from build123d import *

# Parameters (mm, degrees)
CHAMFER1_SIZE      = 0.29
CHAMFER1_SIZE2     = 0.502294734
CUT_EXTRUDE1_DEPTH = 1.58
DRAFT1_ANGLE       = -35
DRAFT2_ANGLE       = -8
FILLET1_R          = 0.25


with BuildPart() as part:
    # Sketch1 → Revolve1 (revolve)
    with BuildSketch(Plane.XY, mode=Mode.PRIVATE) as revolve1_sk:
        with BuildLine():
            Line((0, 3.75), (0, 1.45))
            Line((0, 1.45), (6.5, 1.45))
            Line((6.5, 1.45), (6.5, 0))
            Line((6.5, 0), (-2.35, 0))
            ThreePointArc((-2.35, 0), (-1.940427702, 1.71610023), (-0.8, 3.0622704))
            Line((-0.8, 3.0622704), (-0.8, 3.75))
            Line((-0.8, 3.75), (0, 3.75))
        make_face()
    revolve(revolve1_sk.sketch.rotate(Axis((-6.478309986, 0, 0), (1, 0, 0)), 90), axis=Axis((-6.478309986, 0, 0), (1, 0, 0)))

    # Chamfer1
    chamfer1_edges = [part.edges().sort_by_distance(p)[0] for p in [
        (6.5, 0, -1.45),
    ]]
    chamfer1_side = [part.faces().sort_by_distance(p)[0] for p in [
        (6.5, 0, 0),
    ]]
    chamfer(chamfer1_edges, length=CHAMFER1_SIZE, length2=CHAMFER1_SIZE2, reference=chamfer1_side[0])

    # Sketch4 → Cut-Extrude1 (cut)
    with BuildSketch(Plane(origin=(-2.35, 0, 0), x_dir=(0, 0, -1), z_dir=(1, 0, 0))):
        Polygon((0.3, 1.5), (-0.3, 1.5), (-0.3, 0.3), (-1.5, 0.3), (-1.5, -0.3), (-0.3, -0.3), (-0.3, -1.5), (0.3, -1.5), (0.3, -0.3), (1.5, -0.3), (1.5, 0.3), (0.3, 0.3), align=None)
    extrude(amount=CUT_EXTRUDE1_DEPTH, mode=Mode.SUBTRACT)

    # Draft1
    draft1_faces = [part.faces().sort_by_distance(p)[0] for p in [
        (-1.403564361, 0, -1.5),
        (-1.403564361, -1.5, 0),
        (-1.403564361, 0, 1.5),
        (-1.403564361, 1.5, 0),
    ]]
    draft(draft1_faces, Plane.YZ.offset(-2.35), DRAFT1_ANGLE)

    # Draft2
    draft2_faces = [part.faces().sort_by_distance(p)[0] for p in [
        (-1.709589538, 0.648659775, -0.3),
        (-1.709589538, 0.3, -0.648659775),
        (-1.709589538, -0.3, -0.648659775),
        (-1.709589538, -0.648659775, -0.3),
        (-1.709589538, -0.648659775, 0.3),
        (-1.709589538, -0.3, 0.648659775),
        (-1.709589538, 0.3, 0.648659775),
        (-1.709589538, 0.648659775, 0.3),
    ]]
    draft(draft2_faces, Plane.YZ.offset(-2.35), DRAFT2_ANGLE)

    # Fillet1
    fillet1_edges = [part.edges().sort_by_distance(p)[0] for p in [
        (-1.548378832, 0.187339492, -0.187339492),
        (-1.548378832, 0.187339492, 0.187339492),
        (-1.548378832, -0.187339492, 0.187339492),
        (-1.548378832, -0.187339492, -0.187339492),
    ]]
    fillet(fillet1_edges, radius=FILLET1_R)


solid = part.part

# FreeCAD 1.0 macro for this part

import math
import FreeCAD as App
import Part
import Sketcher

V = App.Vector


def edges_at(feature, points):
    """Names of the edges that pass closest to the given points."""
    edges = feature.Shape.Edges
    near = lambda p: min(range(len(edges)), key=lambda i: edges[i].distToShape(Part.Vertex(*p))[0])
    return sorted({f"Edge{near(p) + 1}" for p in points})


def faces_at(feature, points):
    """Names of the faces that lie closest to the given points."""
    faces = feature.Shape.Faces
    near = lambda p: min(range(len(faces)), key=lambda i: faces[i].distToShape(Part.Vertex(*p))[0])
    return sorted({f"Face{near(p) + 1}" for p in points})


def add_polygon(sketch, points):
    """Adds a closed chain of lines whose ends are joined by coincident constraints."""
    first, n = sketch.GeometryCount, len(points)
    for a, b in zip(points, points[1:] + points[:1]):
        sketch.addGeometry(Part.LineSegment(App.Vector(*a, 0), App.Vector(*b, 0)), False)
    for i in range(n):
        sketch.addConstraint(Sketcher.Constraint("Coincident", first + i, 2, first + (i + 1) % n, 1))

doc = App.newDocument("Part")
params = doc.addObject("Spreadsheet::Sheet", "Params")
for row, (alias, value) in enumerate([
    ("sketch1_radius", "3.8 mm"),
    ("sketch1_width", "0.8 mm"),
    ("sketch1_width2", "6.5 mm"),
    ("sketch1_height", "2.3 mm"),
    ("sketch1_width3", "8.85 mm"),
    ("revolution_angle", "360 deg"),
    ("chamfer_size", "0.29 mm"),
    ("chamfer_size2", "0.502295 mm"),
    ("sketch2_width", "1.2 mm"),
    ("sketch2_width2", "0.6 mm"),
    ("pocket1_length", "1.58 mm"),
    ("draft_angle", "35 deg"),
    ("draft2_angle", "8 deg"),
    ("fillet_radius", "0.25 mm"),
], start=1):
    params.set(f"A{row}", alias)
    params.set(f"B{row}", "=" + value)
    params.setAlias(f"B{row}", alias)

body = doc.addObject("PartDesign::Body", "Body")

sketch1 = body.newObject("Sketcher::SketchObject", "Sketch")
sketch1.AttachmentSupport = (doc.getObject("XY_Plane"), [""])
sketch1.MapMode = "FlatFace"
sketch1.addGeometry([
    Part.LineSegment(V(0, 1.45, 0), V(0, 3.75, 0)),
    Part.LineSegment(V(0, 3.75, 0), V(-0.8, 3.75, 0)),
    Part.LineSegment(V(-0.8, 3.75, 0), V(-0.8, 3.06227, 0)),
    Part.ArcOfCircle(Part.Circle(V(1.45, 0, 0), V(0, 0, 1), 3.8), math.radians(126.306547), math.radians(180)),
    Part.LineSegment(V(-2.35, 0, 0), V(6.5, 0, 0)),
    Part.LineSegment(V(6.5, 0, 0), V(6.5, 1.45, 0)),
    Part.LineSegment(V(6.5, 1.45, 0), V(0, 1.45, 0)),
], False)
sketch1.addConstraint([
    Sketcher.Constraint("Coincident", 0, 2, 1, 1),
    Sketcher.Constraint("Coincident", 1, 2, 2, 1),
    Sketcher.Constraint("Coincident", 2, 2, 3, 1),
    Sketcher.Constraint("Coincident", 3, 2, 4, 1),
    Sketcher.Constraint("Coincident", 4, 2, 5, 1),
    Sketcher.Constraint("Coincident", 5, 2, 6, 1),
    Sketcher.Constraint("Coincident", 6, 2, 0, 1),
    Sketcher.Constraint("Vertical", 0),
    Sketcher.Constraint("Horizontal", 1),
    Sketcher.Constraint("Vertical", 2),
    Sketcher.Constraint("Horizontal", 4),
    Sketcher.Constraint("Vertical", 5),
    Sketcher.Constraint("Horizontal", 6),
    Sketcher.Constraint("PointOnObject", 3, 3, -1),
    Sketcher.Constraint("PointOnObject", 0, 2, -2),
    Sketcher.Constraint("PointOnObject", 3, 2, -1),
    Sketcher.Constraint("Radius", 3, 3.8),
    Sketcher.Constraint("DistanceX", 1, 2, 1, 1, 0.8),
    Sketcher.Constraint("DistanceX", 6, 2, 6, 1, 6.5),
    Sketcher.Constraint("DistanceY", 0, 1, 0, 2, 2.3),
    Sketcher.Constraint("DistanceX", 4, 1, 4, 2, 8.85),
    Sketcher.Constraint("DistanceY", 5, 1, 5, 2, 1.45),
])
sketch1.setExpression("Constraints[16]", "Params.sketch1_radius")
sketch1.setExpression("Constraints[17]", "Params.sketch1_width")
sketch1.setExpression("Constraints[18]", "Params.sketch1_width2")
sketch1.setExpression("Constraints[19]", "Params.sketch1_height")
sketch1.setExpression("Constraints[20]", "Params.sketch1_width3")
revolution = body.newObject("PartDesign::Revolution", "Revolution")
revolution.Profile = sketch1
revolution.ReferenceAxis = (sketch1, ["H_Axis"])
revolution.setExpression("Angle", "Params.revolution_angle")
doc.recompute()

chamfer = body.newObject("PartDesign::Chamfer", "Chamfer")
chamfer.Base = (revolution, edges_at(revolution, [(6.5, 0, -1.45)]))
chamfer.ChamferType = "Two distances"
chamfer.setExpression("Size", "Params.chamfer_size")
chamfer.setExpression("Size2", "Params.chamfer_size2")

sketch2 = body.newObject("Sketcher::SketchObject", "Sketch001")
sketch2.AttachmentSupport = (doc.getObject("YZ_Plane"), [""])
sketch2.MapMode = "FlatFace"
sketch2.AttachmentOffset = App.Placement(V(0, 0, -2.35), App.Rotation())
add_polygon(sketch2, [(1.5, -0.3), (1.5, 0.3), (0.3, 0.3), (0.3, 1.5), (-0.3, 1.5), (-0.3, 0.3), (-1.5, 0.3), (-1.5, -0.3), (-0.3, -0.3), (-0.3, -1.5), (0.3, -1.5), (0.3, -0.3)])
sketch2.addConstraint([
    Sketcher.Constraint("Vertical", 0),
    Sketcher.Constraint("Horizontal", 1),
    Sketcher.Constraint("Vertical", 2),
    Sketcher.Constraint("Horizontal", 3),
    Sketcher.Constraint("Vertical", 4),
    Sketcher.Constraint("Horizontal", 5),
    Sketcher.Constraint("Vertical", 6),
    Sketcher.Constraint("Horizontal", 7),
    Sketcher.Constraint("Vertical", 8),
    Sketcher.Constraint("Horizontal", 9),
    Sketcher.Constraint("Vertical", 10),
    Sketcher.Constraint("Horizontal", 11),
    Sketcher.Constraint("Symmetric", 0, 2, 6, 2, -1, 1),
    Sketcher.Constraint("Symmetric", 2, 2, 8, 2, -1, 1),
    Sketcher.Constraint("Symmetric", 4, 2, 10, 2, -1, 1),
    Sketcher.Constraint("Symmetric", 1, 2, 4, 2, -2),
    Sketcher.Constraint("Equal", 9, 0),
    Sketcher.Constraint("Equal", 11, 2),
    Sketcher.Constraint("DistanceX", 1, 2, 1, 1, 1.2),
    Sketcher.Constraint("DistanceX", 3, 2, 3, 1, 0.6),
])
sketch2.setExpression("Constraints[30]", "Params.sketch2_width")
sketch2.setExpression("Constraints[31]", "Params.sketch2_width2")
pocket1 = body.newObject("PartDesign::Pocket", "Pocket")
pocket1.Profile = sketch2
pocket1.setExpression("Length", "Params.pocket1_length")
pocket1.Reversed = True
doc.recompute()

datumplane = body.newObject("PartDesign::Plane", "DatumPlane")
datumplane.AttachmentSupport = (doc.getObject("YZ_Plane"), [""])
datumplane.MapMode = "FlatFace"
datumplane.AttachmentOffset = App.Placement(V(0, 0, -2.35), App.Rotation())
draft = body.newObject("PartDesign::Draft", "Draft")
draft.Base = (pocket1, faces_at(pocket1, [
    (-1.406, 0, -1.5),
    (-1.406, -1.5, 0),
    (-1.406, 0, 1.5),
    (-1.406, 1.5, 0),
]))
draft.NeutralPlane = (datumplane, [""])
draft.setExpression("Angle", "Params.draft_angle")
draft.Reversed = True
doc.recompute()

datumplane2 = body.newObject("PartDesign::Plane", "DatumPlane001")
datumplane2.AttachmentSupport = (doc.getObject("YZ_Plane"), [""])
datumplane2.MapMode = "FlatFace"
datumplane2.AttachmentOffset = App.Placement(V(0, 0, -2.35), App.Rotation())
draft2 = body.newObject("PartDesign::Draft", "Draft001")
draft2.Base = (draft, faces_at(draft, [
    (-1.548, 0.812, -0.3),
    (-1.548, 0.3, -0.812),
    (-1.548, -0.3, -0.812),
    (-1.548, -0.812, -0.3),
    (-1.548, -0.812, 0.3),
    (-1.548, -0.3, 0.812),
    (-1.548, 0.3, 0.812),
    (-1.548, 0.812, 0.3),
]))
draft2.NeutralPlane = (datumplane2, [""])
draft2.setExpression("Angle", "Params.draft2_angle")
draft2.Reversed = True
doc.recompute()

fillet = body.newObject("PartDesign::Fillet", "Fillet")
fillet.Base = (draft2, edges_at(draft2, [
    (-1.548, 0.187, -0.187),
    (-1.548, 0.187, 0.187),
    (-1.548, -0.187, 0.187),
    (-1.548, -0.187, -0.187),
]))
fillet.setExpression("Radius", "Params.fillet_radius")

doc.recompute()
